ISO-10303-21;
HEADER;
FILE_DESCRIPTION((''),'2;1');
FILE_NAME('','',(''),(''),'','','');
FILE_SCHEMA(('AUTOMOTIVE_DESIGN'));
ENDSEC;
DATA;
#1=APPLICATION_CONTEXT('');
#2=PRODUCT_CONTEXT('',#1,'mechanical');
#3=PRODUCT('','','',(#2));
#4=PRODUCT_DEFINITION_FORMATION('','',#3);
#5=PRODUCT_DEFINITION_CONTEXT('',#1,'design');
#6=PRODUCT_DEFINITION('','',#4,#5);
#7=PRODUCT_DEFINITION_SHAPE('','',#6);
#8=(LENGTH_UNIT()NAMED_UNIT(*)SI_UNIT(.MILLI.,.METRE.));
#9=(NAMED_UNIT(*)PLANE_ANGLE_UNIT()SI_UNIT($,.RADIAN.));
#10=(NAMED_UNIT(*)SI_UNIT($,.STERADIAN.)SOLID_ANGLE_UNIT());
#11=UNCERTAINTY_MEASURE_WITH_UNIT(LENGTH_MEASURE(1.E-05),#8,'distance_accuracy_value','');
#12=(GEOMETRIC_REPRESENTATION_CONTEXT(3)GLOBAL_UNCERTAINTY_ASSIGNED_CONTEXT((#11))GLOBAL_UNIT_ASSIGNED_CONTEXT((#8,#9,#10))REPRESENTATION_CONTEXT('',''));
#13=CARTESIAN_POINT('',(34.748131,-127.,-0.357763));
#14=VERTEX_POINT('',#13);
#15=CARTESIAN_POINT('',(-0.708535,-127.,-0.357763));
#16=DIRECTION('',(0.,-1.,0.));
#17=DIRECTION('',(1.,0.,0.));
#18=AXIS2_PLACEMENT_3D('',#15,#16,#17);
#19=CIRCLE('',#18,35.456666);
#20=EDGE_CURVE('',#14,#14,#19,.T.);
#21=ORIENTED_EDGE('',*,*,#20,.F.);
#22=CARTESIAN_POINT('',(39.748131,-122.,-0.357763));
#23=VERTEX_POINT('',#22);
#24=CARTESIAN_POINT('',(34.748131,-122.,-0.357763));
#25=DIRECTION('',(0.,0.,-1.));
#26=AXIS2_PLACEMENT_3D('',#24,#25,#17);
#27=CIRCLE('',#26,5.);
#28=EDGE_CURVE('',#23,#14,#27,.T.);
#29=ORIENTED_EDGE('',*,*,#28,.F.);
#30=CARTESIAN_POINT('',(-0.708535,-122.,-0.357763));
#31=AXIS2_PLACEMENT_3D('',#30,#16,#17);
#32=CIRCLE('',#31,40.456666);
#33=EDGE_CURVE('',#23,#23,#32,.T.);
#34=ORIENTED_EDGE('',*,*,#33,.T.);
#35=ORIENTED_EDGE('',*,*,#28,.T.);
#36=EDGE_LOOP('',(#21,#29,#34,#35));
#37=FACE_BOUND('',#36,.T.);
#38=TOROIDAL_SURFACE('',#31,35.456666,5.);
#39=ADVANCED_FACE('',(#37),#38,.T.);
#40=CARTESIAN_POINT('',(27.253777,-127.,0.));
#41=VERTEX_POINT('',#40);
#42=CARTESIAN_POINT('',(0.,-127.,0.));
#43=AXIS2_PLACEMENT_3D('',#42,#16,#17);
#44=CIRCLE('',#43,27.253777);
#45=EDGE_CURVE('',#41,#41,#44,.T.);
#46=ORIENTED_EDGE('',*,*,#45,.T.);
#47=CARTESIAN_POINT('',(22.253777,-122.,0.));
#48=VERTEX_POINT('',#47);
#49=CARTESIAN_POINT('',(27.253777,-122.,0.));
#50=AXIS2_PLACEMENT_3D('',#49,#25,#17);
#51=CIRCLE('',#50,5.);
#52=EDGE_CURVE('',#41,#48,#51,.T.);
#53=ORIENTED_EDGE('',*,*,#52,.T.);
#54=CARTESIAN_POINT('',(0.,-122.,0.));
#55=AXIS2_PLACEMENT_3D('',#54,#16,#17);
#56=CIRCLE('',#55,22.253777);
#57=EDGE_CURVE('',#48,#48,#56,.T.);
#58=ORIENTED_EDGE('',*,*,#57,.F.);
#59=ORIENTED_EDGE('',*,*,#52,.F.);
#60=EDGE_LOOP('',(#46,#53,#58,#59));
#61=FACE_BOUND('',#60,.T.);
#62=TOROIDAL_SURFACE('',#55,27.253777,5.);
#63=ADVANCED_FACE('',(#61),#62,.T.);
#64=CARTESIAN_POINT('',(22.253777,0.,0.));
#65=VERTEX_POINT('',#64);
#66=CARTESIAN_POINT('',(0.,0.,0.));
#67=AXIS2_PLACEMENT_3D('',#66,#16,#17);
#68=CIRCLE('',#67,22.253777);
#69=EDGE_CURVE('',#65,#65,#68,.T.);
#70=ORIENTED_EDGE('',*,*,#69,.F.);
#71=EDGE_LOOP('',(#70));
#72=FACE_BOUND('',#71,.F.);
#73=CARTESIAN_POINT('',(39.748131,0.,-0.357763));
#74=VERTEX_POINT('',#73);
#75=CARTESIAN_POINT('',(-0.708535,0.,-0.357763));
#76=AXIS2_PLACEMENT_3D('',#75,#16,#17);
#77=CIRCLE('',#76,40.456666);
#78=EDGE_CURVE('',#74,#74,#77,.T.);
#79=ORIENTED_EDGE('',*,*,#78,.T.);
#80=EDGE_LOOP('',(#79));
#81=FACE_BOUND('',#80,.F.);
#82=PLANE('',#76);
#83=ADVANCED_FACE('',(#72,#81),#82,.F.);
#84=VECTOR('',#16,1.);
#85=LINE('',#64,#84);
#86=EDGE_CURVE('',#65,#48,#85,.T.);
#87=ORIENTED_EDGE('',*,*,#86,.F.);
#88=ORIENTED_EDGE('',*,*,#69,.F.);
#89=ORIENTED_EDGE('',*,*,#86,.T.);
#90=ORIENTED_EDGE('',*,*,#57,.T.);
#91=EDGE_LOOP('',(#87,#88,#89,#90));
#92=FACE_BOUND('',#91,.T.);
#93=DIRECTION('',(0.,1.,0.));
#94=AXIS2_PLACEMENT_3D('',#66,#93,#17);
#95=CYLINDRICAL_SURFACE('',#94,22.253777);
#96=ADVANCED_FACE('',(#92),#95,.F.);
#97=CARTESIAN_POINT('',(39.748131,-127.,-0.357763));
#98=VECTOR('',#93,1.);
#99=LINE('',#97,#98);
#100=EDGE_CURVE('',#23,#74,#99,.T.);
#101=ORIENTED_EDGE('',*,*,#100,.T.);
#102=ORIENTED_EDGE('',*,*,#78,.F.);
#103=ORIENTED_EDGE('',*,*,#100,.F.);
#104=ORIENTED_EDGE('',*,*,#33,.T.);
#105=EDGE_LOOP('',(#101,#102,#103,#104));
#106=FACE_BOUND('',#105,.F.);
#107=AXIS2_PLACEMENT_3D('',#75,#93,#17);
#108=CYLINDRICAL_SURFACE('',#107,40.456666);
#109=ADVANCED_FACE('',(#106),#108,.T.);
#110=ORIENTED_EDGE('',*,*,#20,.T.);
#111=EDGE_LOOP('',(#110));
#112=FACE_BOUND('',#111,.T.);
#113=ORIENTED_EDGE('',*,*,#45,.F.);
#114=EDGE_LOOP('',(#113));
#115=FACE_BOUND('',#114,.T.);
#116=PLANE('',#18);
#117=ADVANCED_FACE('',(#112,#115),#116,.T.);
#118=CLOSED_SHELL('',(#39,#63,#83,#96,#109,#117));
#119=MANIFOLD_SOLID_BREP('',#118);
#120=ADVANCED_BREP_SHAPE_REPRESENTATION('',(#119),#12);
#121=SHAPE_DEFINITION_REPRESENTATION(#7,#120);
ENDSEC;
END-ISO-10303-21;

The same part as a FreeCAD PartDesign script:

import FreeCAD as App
import Part
import Sketcher

V = App.Vector
Q = App.Units.Quantity


def edges_at(feature, points):
    """Names of the edges that pass closest to the given points."""
    edges = feature.Shape.Edges
    near = lambda p: min(range(len(edges)), key=lambda i: edges[i].distToShape(Part.Vertex(*p))[0])
    return sorted({f"Edge{near(p) + 1}" for p in points})

doc = App.newDocument("Part")
body = doc.addObject("PartDesign::Body", "Body")

sketch1 = body.newObject("Sketcher::SketchObject", "Sketch")
sketch1.AttachmentSupport = (doc.getObject("XZ_Plane"), [""])
sketch1.MapMode = "FlatFace"
sketch1.addGeometry([
    Part.Circle(V(-1, 0, 0), V(0, 0, 1), 40),
    Part.Circle(V(0, 0, 0), V(0, 0, 1), 22),
], False)
sketch1.addConstraint([
    Sketcher.Constraint("Coincident", 1, 3, -1, 1),
    Sketcher.Constraint("Diameter", 0, Q("80.913332 mm")),
    Sketcher.Constraint("Diameter", 1, Q("44.507554 mm")),
    Sketcher.Constraint("DistanceX", 0, 3, -1, 1, Q("0.708535 mm")),
    Sketcher.Constraint("DistanceY", 0, 3, -1, 1, Q("0.357763 mm")),
])
pad1 = body.newObject("PartDesign::Pad", "Pad")
pad1.Profile = sketch1
pad1.Length = 127

sketch2 = body.newObject("Sketcher::SketchObject", "Sketch001")
sketch2.AttachmentSupport = (doc.getObject("XZ_Plane"), [""])
sketch2.MapMode = "FlatFace"
sketch2.addGeometry([
    Part.Circle(V(-1, 0, 0), V(0, 0, 1), 40),
    Part.Circle(V(0, 0, 0), V(0, 0, 1), 22),
], False)
sketch2.addConstraint([
    Sketcher.Constraint("Coincident", 1, 3, -1, 1),
    Sketcher.Constraint("Diameter", 0, Q("80.913332 mm")),
    Sketcher.Constraint("Diameter", 1, Q("44.507554 mm")),
    Sketcher.Constraint("DistanceX", 0, 3, -1, 1, Q("0.708535 mm")),
    Sketcher.Constraint("DistanceY", 0, 3, -1, 1, Q("0.357763 mm")),
])
pad2 = body.newObject("PartDesign::Pad", "Pad001")
pad2.Profile = sketch2
pad2.Length = 50
doc.recompute()

fillet = body.newObject("PartDesign::Fillet", "Fillet")
fillet.Base = (pad2, edges_at(pad2, [(-41.165, -127, -0.358)]))
fillet.Radius = 5
doc.recompute()

fillet2 = body.newObject("PartDesign::Fillet", "Fillet001")
fillet2.Base = (fillet, edges_at(fillet, [(-22.254, -127, 0)]))
fillet2.Radius = 5

doc.recompute()
